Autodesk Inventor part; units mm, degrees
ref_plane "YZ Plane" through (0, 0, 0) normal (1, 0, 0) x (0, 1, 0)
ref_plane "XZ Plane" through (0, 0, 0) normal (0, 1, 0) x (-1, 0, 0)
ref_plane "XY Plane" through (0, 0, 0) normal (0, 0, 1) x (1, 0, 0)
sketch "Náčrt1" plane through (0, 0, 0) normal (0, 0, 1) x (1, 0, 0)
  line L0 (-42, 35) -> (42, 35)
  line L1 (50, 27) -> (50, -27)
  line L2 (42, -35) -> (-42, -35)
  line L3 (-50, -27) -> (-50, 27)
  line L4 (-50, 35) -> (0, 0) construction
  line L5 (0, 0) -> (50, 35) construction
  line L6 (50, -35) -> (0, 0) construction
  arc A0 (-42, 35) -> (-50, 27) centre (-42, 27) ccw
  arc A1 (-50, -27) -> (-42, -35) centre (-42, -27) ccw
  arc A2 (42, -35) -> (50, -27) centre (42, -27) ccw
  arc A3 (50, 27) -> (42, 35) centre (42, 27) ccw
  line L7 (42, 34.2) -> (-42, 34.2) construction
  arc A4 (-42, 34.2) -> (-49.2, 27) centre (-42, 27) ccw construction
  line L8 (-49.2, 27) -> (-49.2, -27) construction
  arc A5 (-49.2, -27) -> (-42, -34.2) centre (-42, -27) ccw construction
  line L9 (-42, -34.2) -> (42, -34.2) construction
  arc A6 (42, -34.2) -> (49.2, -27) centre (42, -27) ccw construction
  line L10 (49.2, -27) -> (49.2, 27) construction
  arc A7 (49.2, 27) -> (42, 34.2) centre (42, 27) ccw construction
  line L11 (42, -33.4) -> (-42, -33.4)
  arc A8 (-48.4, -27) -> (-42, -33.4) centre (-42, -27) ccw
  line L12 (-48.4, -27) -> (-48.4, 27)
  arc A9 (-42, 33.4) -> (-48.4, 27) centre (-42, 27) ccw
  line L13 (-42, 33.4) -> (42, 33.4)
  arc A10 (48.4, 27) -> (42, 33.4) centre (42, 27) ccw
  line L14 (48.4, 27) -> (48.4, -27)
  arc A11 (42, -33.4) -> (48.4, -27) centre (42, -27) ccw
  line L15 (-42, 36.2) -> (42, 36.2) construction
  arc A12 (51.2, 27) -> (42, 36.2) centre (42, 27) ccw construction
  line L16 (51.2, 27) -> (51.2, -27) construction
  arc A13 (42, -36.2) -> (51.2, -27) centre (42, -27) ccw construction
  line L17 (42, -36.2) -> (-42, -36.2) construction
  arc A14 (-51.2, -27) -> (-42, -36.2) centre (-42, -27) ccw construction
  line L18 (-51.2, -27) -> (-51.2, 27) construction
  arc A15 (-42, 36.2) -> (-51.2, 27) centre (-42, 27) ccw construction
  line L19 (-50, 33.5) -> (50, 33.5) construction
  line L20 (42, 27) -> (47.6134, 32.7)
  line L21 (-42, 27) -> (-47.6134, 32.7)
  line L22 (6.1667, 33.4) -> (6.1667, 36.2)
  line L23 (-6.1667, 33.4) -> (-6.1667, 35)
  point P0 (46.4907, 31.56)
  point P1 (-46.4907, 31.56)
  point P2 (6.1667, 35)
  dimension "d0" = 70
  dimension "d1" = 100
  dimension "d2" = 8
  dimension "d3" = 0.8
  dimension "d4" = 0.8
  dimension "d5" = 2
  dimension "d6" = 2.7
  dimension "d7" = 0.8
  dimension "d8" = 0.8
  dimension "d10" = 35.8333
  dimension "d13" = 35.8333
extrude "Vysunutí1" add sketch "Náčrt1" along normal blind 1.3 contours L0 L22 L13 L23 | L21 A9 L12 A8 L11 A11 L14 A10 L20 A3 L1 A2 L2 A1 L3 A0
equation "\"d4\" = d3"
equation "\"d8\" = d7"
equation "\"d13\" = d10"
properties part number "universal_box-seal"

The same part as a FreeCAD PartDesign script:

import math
import FreeCAD as App
import Part
import Sketcher
Q = App.Units.Quantity


def add_polygon(sketch, points):
    """Adds a closed chain of lines whose ends are joined by coincident constraints."""
    first, n = sketch.GeometryCount, len(points)
    for a, b in zip(points, points[1:] + points[:1]):
        sketch.addGeometry(Part.LineSegment(App.Vector(*a, 0), App.Vector(*b, 0)), False)
    for i in range(n):
        sketch.addConstraint(Sketcher.Constraint("Coincident", first + i, 2, first + (i + 1) % n, 1))

doc = App.newDocument("Part")
body = doc.addObject("PartDesign::Body", "Body")
body.AllowCompound = True

sketch1 = body.newObject("Sketcher::SketchObject", "Sketch")
sketch1.AttachmentSupport = (doc.getObject("XY_Plane"), [""])
sketch1.MapMode = "FlatFace"
add_polygon(sketch1, [(6.1667, 35), (-6.1667, 35), (-6.1667, 33.4), (6.1667, 33.4)])
sketch1.addGeometry(Part.LineSegment(App.Vector(-46.490711, 31.559991, 0), App.Vector(-47.6134, 32.7, 0)), False)
sketch1.addGeometry(Part.ArcOfCircle(Part.Circle(App.Vector(-42, 27, 0), App.Vector(0, 0, 1), 8), math.radians(134.56143), math.radians(180)), False)
sketch1.addGeometry(Part.LineSegment(App.Vector(-50, 27, 0), App.Vector(-50, -27, 0)), False)
sketch1.addGeometry(Part.ArcOfCircle(Part.Circle(App.Vector(-42, -27, 0), App.Vector(0, 0, 1), 8), math.radians(180), math.radians(270)), False)
sketch1.addGeometry(Part.LineSegment(App.Vector(-42, -35, 0), App.Vector(42, -35, 0)), False)
sketch1.addGeometry(Part.ArcOfCircle(Part.Circle(App.Vector(42, -27, 0), App.Vector(0, 0, 1), 8), math.radians(-90), math.radians(0)), False)
sketch1.addGeometry(Part.LineSegment(App.Vector(50, -27, 0), App.Vector(50, 27, 0)), False)
sketch1.addGeometry(Part.ArcOfCircle(Part.Circle(App.Vector(42, 27, 0), App.Vector(0, 0, 1), 8), math.radians(0), math.radians(45.43857)), False)
sketch1.addGeometry(Part.LineSegment(App.Vector(47.6134, 32.7, 0), App.Vector(46.490711, 31.559991, 0)), False)
sketch1.addGeometry(Part.ArcOfCircle(Part.Circle(App.Vector(42, 27, 0), App.Vector(0, 0, 1), 6.4), math.radians(0), math.radians(45.43857)), False)
sketch1.addGeometry(Part.LineSegment(App.Vector(48.4, 27, 0), App.Vector(48.4, -27, 0)), False)
sketch1.addGeometry(Part.ArcOfCircle(Part.Circle(App.Vector(42, -27, 0), App.Vector(0, 0, 1), 6.4), math.radians(-90), math.radians(0)), False)
sketch1.addGeometry(Part.LineSegment(App.Vector(42, -33.4, 0), App.Vector(-42, -33.4, 0)), False)
sketch1.addGeometry(Part.ArcOfCircle(Part.Circle(App.Vector(-42, -27, 0), App.Vector(0, 0, 1), 6.4), math.radians(180), math.radians(270)), False)
sketch1.addGeometry(Part.LineSegment(App.Vector(-48.4, -27, 0), App.Vector(-48.4, 27, 0)), False)
sketch1.addGeometry(Part.ArcOfCircle(Part.Circle(App.Vector(-42, 27, 0), App.Vector(0, 0, 1), 6.4), math.radians(134.56143), math.radians(180)), False)
sketch1.addConstraint([
    Sketcher.Constraint("Coincident", 4, 2, 5, 1),
    Sketcher.Constraint("Tangent", 5, 2, 6, 1),
    Sketcher.Constraint("Tangent", 6, 2, 7, 1),
    Sketcher.Constraint("Tangent", 7, 2, 8, 1),
    Sketcher.Constraint("Tangent", 8, 2, 9, 1),
    Sketcher.Constraint("Tangent", 9, 2, 10, 1),
    Sketcher.Constraint("Tangent", 10, 2, 11, 1),
    Sketcher.Constraint("Coincident", 11, 2, 12, 1),
    Sketcher.Constraint("Coincident", 12, 2, 13, 2),
    Sketcher.Constraint("Tangent", 13, 1, 14, 1),
    Sketcher.Constraint("Tangent", 14, 2, 15, 2),
    Sketcher.Constraint("Tangent", 15, 1, 16, 1),
    Sketcher.Constraint("Tangent", 16, 2, 17, 2),
    Sketcher.Constraint("Tangent", 17, 1, 18, 1),
    Sketcher.Constraint("Tangent", 18, 2, 19, 2),
    Sketcher.Constraint("Coincident", 19, 1, 4, 1),
    Sketcher.Constraint("Horizontal", 0),
    Sketcher.Constraint("Vertical", 1),
    Sketcher.Constraint("Horizontal", 2),
    Sketcher.Constraint("Vertical", 3),
    Sketcher.Constraint("Vertical", 6),
    Sketcher.Constraint("Horizontal", 8),
    Sketcher.Constraint("Vertical", 10),
    Sketcher.Constraint("Vertical", 14),
    Sketcher.Constraint("Horizontal", 16),
    Sketcher.Constraint("Vertical", 18),
    Sketcher.Constraint("Coincident", 13, 3, 11, 3),
    Sketcher.Constraint("Coincident", 15, 3, 9, 3),
    Sketcher.Constraint("Coincident", 17, 3, 7, 3),
    Sketcher.Constraint("Coincident", 19, 3, 5, 3),
    Sketcher.Constraint("Equal", 5, 7),
    Sketcher.Constraint("Equal", 7, 9),
    Sketcher.Constraint("Equal", 9, 11),
    Sketcher.Constraint("Symmetric", 5, 3, 9, 3, -1, 1),
    Sketcher.Constraint("Symmetric", 4, 2, 11, 2, -2),
    Sketcher.Constraint("Horizontal", 12, 2, 19, 1),
    Sketcher.Constraint("Radius", 5, Q("8 mm")),
    Sketcher.Constraint("DistanceY", 5, 3, 0, 2, Q("8 mm")),
    Sketcher.Constraint("Radius", 13, Q("6.4 mm")),
    Sketcher.Constraint("DistanceX", 8, 1, 8, 2, Q("84 mm")),
    Sketcher.Constraint("DistanceY", 6, 2, 6, 1, Q("54 mm")),
    Sketcher.Constraint("DistanceY", 1, 2, 1, 1, Q("1.6 mm")),
    Sketcher.Constraint("DistanceY", -1, 1, 4, 2, Q("32.7 mm")),
    Sketcher.Constraint("DistanceX", 5, 3, 0, 2, Q("35.8333 mm")),
    Sketcher.Constraint("DistanceX", 2, 2, 11, 3, Q("35.8333 mm")),
    Sketcher.Constraint("DistanceY", -1, 1, 12, 2, Q("31.56 mm")),
])
pad1 = body.newObject("PartDesign::Pad", "Pad")
pad1.Profile = sketch1
pad1.Length = 1.3

doc.recompute()
